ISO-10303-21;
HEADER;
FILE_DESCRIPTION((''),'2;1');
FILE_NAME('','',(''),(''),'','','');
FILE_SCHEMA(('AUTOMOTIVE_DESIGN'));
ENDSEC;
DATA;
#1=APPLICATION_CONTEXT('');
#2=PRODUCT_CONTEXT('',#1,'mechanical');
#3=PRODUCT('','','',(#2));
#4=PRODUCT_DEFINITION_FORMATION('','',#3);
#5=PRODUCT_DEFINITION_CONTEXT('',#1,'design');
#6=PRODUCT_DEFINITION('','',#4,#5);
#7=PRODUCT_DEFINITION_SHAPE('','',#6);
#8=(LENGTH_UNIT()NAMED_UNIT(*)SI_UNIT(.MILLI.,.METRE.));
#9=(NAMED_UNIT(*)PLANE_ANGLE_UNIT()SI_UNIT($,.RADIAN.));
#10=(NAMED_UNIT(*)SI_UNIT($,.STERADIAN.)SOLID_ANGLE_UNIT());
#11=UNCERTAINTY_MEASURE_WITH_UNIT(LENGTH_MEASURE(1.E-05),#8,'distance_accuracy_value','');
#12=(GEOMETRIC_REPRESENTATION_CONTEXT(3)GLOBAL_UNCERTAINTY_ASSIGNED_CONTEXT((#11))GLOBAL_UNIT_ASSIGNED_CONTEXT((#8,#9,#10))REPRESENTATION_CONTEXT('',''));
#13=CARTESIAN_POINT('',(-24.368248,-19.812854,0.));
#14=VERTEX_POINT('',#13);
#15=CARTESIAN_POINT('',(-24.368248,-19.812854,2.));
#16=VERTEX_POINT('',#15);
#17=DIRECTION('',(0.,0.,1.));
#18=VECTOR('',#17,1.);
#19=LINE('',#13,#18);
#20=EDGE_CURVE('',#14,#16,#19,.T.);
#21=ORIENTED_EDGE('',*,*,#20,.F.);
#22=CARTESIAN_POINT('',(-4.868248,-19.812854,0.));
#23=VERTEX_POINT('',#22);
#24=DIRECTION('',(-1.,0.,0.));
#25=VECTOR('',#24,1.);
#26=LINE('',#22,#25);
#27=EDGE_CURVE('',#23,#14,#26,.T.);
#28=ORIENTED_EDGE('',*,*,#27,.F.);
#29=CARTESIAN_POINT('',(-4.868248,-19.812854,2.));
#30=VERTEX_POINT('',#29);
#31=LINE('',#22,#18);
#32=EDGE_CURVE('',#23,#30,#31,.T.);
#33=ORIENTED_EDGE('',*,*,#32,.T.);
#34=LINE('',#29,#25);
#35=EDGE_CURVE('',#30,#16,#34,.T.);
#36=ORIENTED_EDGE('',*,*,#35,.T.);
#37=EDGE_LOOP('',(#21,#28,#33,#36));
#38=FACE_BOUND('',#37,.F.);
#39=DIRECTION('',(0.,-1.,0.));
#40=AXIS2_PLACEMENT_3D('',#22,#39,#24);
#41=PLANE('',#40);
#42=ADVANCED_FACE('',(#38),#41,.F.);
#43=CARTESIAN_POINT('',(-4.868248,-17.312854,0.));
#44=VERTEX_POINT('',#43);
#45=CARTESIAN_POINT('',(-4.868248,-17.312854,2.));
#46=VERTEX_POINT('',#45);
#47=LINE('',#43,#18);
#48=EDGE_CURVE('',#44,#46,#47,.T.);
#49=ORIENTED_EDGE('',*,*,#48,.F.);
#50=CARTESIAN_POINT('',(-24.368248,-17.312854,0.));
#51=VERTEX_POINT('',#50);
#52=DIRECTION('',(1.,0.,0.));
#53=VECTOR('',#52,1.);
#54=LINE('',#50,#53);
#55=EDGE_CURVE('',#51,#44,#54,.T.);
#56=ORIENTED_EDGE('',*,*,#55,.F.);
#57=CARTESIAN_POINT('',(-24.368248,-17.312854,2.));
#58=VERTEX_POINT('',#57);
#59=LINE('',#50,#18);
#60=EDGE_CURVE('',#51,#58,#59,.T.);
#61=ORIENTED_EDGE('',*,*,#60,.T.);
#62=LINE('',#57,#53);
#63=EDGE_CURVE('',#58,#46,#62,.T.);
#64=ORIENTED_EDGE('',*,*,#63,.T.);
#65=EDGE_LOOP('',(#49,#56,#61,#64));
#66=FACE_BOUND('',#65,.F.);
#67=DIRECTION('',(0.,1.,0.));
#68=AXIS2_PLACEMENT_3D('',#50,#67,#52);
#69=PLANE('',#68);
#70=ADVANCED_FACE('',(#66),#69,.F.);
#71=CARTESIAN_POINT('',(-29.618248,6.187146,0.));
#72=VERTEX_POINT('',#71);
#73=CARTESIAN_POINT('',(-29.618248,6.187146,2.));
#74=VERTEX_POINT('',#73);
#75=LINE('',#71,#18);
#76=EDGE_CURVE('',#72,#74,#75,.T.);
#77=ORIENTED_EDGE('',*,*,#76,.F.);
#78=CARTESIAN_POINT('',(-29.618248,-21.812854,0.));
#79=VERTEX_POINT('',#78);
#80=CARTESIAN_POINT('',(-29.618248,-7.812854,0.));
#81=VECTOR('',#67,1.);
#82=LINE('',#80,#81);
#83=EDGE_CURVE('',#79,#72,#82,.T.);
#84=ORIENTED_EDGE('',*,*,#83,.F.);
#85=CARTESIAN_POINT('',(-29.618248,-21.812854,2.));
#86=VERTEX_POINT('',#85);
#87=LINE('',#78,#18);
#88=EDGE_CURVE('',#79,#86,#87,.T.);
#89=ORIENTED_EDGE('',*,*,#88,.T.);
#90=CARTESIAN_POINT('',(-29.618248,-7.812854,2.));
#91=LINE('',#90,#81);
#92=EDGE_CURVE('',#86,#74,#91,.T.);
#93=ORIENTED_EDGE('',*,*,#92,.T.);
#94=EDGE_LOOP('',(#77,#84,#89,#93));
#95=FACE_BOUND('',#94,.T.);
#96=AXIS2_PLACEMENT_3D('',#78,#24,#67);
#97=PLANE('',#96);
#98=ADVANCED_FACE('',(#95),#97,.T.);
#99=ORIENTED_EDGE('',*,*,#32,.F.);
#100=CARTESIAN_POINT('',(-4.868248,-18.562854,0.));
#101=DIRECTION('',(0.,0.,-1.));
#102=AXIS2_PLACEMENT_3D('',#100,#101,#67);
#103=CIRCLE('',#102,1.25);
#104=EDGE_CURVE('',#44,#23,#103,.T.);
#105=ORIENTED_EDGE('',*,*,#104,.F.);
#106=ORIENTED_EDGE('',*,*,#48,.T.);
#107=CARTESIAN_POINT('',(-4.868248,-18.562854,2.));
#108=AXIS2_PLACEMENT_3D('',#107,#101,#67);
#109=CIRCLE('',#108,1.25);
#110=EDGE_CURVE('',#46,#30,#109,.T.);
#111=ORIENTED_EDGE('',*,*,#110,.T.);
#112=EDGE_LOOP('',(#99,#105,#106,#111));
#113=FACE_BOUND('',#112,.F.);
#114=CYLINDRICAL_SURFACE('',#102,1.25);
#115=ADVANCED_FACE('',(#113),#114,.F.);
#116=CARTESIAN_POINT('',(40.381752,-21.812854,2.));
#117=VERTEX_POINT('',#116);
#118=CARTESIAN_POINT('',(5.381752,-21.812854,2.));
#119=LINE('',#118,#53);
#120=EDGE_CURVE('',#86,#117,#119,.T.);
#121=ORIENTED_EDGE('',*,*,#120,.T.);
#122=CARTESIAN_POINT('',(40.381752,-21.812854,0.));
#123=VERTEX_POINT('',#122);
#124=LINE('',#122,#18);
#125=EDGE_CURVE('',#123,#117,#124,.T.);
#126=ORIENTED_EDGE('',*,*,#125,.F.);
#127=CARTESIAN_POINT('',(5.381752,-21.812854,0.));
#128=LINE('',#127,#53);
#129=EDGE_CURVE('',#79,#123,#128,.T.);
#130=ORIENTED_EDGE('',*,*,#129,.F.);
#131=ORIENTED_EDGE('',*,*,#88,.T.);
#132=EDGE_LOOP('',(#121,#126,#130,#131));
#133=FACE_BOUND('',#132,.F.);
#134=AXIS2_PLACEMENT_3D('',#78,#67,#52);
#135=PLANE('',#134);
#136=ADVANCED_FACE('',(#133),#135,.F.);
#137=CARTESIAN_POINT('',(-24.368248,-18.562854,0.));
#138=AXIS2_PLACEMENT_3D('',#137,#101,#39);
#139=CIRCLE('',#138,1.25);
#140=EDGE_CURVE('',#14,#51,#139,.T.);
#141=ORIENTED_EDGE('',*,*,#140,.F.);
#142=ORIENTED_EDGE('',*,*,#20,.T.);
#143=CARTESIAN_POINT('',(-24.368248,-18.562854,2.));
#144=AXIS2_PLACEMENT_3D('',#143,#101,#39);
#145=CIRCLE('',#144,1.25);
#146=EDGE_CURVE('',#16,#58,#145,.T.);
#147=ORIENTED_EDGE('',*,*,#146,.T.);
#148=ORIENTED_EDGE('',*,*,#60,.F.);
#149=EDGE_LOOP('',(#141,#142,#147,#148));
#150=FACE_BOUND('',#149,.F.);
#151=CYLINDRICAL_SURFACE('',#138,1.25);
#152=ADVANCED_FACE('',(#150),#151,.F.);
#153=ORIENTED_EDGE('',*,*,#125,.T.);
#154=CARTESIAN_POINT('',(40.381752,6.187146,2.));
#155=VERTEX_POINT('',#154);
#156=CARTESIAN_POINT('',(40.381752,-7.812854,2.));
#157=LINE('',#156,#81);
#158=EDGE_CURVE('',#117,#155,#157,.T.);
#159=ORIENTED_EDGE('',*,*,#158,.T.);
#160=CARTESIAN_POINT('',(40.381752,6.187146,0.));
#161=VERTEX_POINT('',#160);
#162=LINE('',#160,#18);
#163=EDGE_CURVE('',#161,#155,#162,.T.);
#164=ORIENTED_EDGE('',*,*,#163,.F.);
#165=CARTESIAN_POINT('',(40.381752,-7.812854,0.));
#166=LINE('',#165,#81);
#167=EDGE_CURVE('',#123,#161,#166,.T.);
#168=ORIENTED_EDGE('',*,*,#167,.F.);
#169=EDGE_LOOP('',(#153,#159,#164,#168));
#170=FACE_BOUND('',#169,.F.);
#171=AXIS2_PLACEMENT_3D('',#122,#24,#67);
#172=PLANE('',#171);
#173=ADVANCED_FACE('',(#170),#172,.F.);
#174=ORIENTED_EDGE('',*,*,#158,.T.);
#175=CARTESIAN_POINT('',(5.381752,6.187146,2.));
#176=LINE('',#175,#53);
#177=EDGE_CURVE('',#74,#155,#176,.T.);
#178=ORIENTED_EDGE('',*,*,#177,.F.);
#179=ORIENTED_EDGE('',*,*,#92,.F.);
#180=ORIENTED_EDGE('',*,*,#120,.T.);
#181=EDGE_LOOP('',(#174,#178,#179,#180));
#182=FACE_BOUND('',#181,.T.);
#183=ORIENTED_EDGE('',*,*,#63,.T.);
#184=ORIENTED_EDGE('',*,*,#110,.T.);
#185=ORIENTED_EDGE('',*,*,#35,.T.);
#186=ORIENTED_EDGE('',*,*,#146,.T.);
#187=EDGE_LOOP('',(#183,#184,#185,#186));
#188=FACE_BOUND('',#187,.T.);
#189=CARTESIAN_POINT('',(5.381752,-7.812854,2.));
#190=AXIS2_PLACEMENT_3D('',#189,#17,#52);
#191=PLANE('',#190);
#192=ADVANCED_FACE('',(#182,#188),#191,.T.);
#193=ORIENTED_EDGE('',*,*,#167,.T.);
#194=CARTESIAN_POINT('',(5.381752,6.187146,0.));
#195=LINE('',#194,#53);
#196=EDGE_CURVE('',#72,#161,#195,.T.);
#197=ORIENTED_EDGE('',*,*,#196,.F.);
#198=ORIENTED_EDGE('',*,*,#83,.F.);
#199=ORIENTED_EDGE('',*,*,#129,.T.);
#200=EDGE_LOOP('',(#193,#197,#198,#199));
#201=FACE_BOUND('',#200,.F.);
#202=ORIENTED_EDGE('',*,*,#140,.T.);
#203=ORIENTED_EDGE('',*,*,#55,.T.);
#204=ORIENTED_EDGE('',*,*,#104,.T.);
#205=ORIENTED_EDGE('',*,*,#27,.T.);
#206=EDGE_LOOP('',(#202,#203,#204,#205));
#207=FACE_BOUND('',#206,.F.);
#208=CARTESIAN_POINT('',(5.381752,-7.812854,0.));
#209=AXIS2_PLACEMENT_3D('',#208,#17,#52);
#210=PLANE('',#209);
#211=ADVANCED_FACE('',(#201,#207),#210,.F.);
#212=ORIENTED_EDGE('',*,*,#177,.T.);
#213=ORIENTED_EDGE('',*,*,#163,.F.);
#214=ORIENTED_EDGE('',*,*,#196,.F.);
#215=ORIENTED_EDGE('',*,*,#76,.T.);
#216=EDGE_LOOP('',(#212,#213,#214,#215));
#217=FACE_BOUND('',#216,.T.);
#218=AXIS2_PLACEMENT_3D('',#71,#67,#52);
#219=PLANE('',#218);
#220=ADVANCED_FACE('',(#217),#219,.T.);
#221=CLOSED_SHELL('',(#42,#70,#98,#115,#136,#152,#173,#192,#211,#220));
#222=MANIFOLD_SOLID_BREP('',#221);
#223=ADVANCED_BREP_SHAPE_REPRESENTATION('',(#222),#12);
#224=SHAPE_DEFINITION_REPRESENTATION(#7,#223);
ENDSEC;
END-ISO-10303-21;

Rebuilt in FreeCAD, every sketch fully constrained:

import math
import FreeCAD as App
import Part
import Sketcher

V = App.Vector


def add_polygon(sketch, points):
    """Adds a closed chain of lines whose ends are joined by coincident constraints."""
    first, n = sketch.GeometryCount, len(points)
    for a, b in zip(points, points[1:] + points[:1]):
        sketch.addGeometry(Part.LineSegment(App.Vector(*a, 0), App.Vector(*b, 0)), False)
    for i in range(n):
        sketch.addConstraint(Sketcher.Constraint("Coincident", first + i, 2, first + (i + 1) % n, 1))

doc = App.newDocument("Part")
params = doc.addObject("Spreadsheet::Sheet", "Params")
for row, (alias, value) in enumerate([
    ("sketch1_width", "70 mm"),
    ("sketch1_height", "28 mm"),
    ("sketch1_radius", "1.25 mm"),
    ("sketch1_width2", "19.5 mm"),
    ("pad1_length", "2 mm"),
], start=1):
    params.set(f"A{row}", alias)
    params.set(f"B{row}", "=" + value)
    params.setAlias(f"B{row}", alias)

body = doc.addObject("PartDesign::Body", "Body")

sketch1 = body.newObject("Sketcher::SketchObject", "Sketch")
sketch1.AttachmentSupport = (doc.getObject("XY_Plane"), [""])
sketch1.MapMode = "FlatFace"
add_polygon(sketch1, [(-29.6, 6.2), (-29.6, -21.8), (40.4, -21.8), (40.4, 6.2)])
sketch1.addGeometry(Part.LineSegment(V(-4.9, -19.8, 0), V(-24.4, -19.8, 0)), False)
sketch1.addGeometry(Part.ArcOfCircle(Part.Circle(V(-24.4, -18.6, 0), V(0, 0, 1), 1.2), math.radians(90), math.radians(270)), False)
sketch1.addGeometry(Part.LineSegment(V(-24.4, -17.3, 0), V(-4.9, -17.3, 0)), False)
sketch1.addGeometry(Part.ArcOfCircle(Part.Circle(V(-4.9, -18.6, 0), V(0, 0, 1), 1.2), math.radians(-90), math.radians(90)), False)
sketch1.addConstraint(Sketcher.Constraint("Tangent", 4, 2, 5, 2))
sketch1.addConstraint(Sketcher.Constraint("Tangent", 5, 1, 6, 1))
sketch1.addConstraint(Sketcher.Constraint("Tangent", 6, 2, 7, 2))
sketch1.addConstraint(Sketcher.Constraint("Tangent", 7, 1, 4, 1))
sketch1.addConstraint(Sketcher.Constraint("Vertical", 0))
sketch1.addConstraint(Sketcher.Constraint("Horizontal", 1))
sketch1.addConstraint(Sketcher.Constraint("Vertical", 2))
sketch1.addConstraint(Sketcher.Constraint("Horizontal", 3))
sketch1.addConstraint(Sketcher.Constraint("Horizontal", 4))
sketch1.addConstraint(Sketcher.Constraint("Horizontal", 6))
sketch1.addConstraint(Sketcher.Constraint("DistanceX", 1, 1, 1, 2, 70.0))
sketch1.addConstraint(Sketcher.Constraint("DistanceY", 0, 2, 0, 1, 28.0))
sketch1.addConstraint(Sketcher.Constraint("Radius", 5, 1.25))
sketch1.addConstraint(Sketcher.Constraint("DistanceX", 4, 2, 4, 1, 19.5))
sketch1.addConstraint(Sketcher.Constraint("DistanceY", 0, 2, 4, 2, 2.0))
sketch1.addConstraint(Sketcher.Constraint("DistanceX", 0, 2, 5, 3, 5.25))
sketch1.addConstraint(Sketcher.Constraint("DistanceX", 5, 3, -1, 1, 24.368248))
sketch1.addConstraint(Sketcher.Constraint("DistanceY", 5, 3, -1, 1, 18.562854))
sketch1.setExpression("Constraints[14]", "Params.sketch1_width")
sketch1.setExpression("Constraints[15]", "Params.sketch1_height")
sketch1.setExpression("Constraints[16]", "Params.sketch1_radius")
sketch1.setExpression("Constraints[17]", "Params.sketch1_width2")
pad1 = body.newObject("PartDesign::Pad", "Pad")
pad1.Profile = sketch1
pad1.setExpression("Length", "Params.pad1_length")

doc.recompute()
